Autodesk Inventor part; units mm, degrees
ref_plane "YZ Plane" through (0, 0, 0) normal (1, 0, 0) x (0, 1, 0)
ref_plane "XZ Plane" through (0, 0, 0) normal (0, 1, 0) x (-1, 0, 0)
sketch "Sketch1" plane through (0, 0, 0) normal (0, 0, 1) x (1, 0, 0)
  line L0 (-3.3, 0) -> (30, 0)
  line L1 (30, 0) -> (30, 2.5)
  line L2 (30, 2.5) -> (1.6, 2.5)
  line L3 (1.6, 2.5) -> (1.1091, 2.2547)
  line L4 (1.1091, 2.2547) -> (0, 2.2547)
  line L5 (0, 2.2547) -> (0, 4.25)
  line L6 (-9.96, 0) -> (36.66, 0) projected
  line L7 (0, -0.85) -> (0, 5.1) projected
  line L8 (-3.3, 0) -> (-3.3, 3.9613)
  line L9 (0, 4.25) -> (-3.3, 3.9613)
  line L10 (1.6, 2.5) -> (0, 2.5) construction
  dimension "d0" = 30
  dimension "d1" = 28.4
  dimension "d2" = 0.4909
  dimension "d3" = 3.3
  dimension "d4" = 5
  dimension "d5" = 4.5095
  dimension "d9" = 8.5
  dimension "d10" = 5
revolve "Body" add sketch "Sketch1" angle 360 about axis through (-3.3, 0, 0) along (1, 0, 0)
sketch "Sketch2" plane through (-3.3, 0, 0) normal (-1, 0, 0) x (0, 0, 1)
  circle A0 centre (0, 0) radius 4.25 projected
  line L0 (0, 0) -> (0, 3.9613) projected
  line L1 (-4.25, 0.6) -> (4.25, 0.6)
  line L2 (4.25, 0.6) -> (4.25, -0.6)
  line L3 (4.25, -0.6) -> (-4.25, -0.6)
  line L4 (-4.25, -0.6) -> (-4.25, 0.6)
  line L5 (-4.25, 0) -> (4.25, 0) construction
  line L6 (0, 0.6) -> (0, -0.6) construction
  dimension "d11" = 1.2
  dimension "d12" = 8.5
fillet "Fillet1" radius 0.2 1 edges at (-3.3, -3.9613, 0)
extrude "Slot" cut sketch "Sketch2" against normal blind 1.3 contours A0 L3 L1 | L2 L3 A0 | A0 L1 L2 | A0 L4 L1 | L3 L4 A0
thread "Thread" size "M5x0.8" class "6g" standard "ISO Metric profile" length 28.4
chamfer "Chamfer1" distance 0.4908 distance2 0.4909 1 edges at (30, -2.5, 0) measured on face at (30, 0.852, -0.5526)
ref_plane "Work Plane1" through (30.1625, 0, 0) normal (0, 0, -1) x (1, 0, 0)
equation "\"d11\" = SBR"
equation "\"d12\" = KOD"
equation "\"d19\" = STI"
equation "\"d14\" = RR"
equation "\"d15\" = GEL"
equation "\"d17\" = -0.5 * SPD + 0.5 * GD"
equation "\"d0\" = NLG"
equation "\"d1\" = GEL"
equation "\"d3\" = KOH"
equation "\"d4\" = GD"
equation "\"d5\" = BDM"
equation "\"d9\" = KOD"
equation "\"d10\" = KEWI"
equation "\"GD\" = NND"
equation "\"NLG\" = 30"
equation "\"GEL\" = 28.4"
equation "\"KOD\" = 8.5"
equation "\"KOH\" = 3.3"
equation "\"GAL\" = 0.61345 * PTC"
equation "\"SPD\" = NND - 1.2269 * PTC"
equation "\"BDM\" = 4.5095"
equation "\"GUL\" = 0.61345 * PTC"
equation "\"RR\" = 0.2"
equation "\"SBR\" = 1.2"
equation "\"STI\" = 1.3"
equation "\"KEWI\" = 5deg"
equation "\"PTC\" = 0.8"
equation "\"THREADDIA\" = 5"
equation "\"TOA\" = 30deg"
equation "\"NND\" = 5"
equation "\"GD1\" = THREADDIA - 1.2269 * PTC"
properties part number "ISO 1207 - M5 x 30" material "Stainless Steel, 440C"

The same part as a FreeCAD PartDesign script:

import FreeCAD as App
import Part
import Sketcher
Q = App.Units.Quantity


def edges_at(feature, points):
    """Names of the edges that pass closest to the given points."""
    edges = feature.Shape.Edges
    near = lambda p: min(range(len(edges)), key=lambda i: edges[i].distToShape(Part.Vertex(*p))[0])
    return sorted({f"Edge{near(p) + 1}" for p in points})

doc = App.newDocument("Part")
body = doc.addObject("PartDesign::Body", "Body")

# Sketch on XY plane
sketch1 = doc.addObject("Sketcher::SketchObject", "Sketch")
body.addObject(sketch1)
sketch1.AttachmentSupport = (doc.XY_Plane, [""])
sketch1.MapMode = "FlatFace"
sketch1.addGeometry([
    Part.LineSegment(App.Vector(-3.3, 4, 0), App.Vector(-3.3, 0, 0)),  # 0
    Part.LineSegment(App.Vector(-3.3, 0, 0), App.Vector(30, 0, 0)),  # 1
    Part.LineSegment(App.Vector(30, 0, 0), App.Vector(30, 2.5, 0)),  # 2
    Part.LineSegment(App.Vector(30, 2.5, 0), App.Vector(1.6, 2.5, 0)),  # 3
    Part.LineSegment(App.Vector(1.6, 2.5, 0), App.Vector(1.1, 2.3, 0)),  # 4
    Part.LineSegment(App.Vector(1.1, 2.3, 0), App.Vector(0, 2.3, 0)),  # 5
    Part.LineSegment(App.Vector(0, 2.3, 0), App.Vector(0, 4.2, 0)),  # 6
    Part.LineSegment(App.Vector(0, 4.2, 0), App.Vector(-3.3, 4, 0)),  # 7
], False)
sketch1.addConstraint([
    Sketcher.Constraint("Coincident", 0, 2, 1, 1),
    Sketcher.Constraint("Coincident", 1, 2, 2, 1),
    Sketcher.Constraint("Coincident", 2, 2, 3, 1),
    Sketcher.Constraint("Coincident", 3, 2, 4, 1),
    Sketcher.Constraint("Coincident", 4, 2, 5, 1),
    Sketcher.Constraint("Coincident", 5, 2, 6, 1),
    Sketcher.Constraint("Coincident", 6, 2, 7, 1),
    Sketcher.Constraint("Coincident", 7, 2, 0, 1),
    Sketcher.Constraint("Vertical", 0),
    Sketcher.Constraint("Horizontal", 1),
    Sketcher.Constraint("Vertical", 2),
    Sketcher.Constraint("Horizontal", 3),
    Sketcher.Constraint("Horizontal", 5),
    Sketcher.Constraint("Vertical", 6),
    Sketcher.Constraint("PointOnObject", 0, 2, -1),
    Sketcher.Constraint("PointOnObject", 5, 2, -2),
    Sketcher.Constraint("DistanceX", 3, 2, 3, 1, 28.4),
    Sketcher.Constraint("DistanceX", -1, 1, 1, 2, 30.0),
    Sketcher.Constraint("DistanceX", 0, 2, -1, 1, 3.3),
    Sketcher.Constraint("Angle", 7, Q("-175.0002 deg")),
    Sketcher.Constraint("DistanceY", 2, 1, 2, 2, 2.5),
    Sketcher.Constraint("DistanceX", 4, 2, 3, 2, 0.491),
    Sketcher.Constraint("Angle", 4, Q("-153.449 deg")),
    Sketcher.Constraint("DistanceY", -1, 1, 6, 2, 4.25),
])
revolution = doc.addObject("PartDesign::Revolution", "Revolution")
body.addObject(revolution)
revolution.Profile = sketch1
revolution.ReferenceAxis = (sketch1, ["H_Axis"])
revolution.Angle = 360
doc.recompute()

fillet = doc.addObject("PartDesign::Fillet", "Fillet")
body.addObject(fillet)
fillet.Base = (revolution, edges_at(revolution, [(-3.3, -3.961, 0)]))
fillet.Radius = 0.2

# Sketch on YZ plane
sketch2 = doc.addObject("Sketcher::SketchObject", "Sketch001")
body.addObject(sketch2)
sketch2.AttachmentSupport = (doc.YZ_Plane, [""])
sketch2.MapMode = "FlatFace"
sketch2.AttachmentOffset = App.Placement(App.Vector(0, 0, -3.3), App.Rotation())
sketch2.addGeometry([
    Part.LineSegment(App.Vector(-0.6, 4.2, 0), App.Vector(0.6, 4.2, 0)),
    Part.LineSegment(App.Vector(0.6, 4.2, 0), App.Vector(0.6, -4.2, 0)),
    Part.LineSegment(App.Vector(0.6, -4.2, 0), App.Vector(-0.6, -4.2, 0)),
    Part.LineSegment(App.Vector(-0.6, -4.2, 0), App.Vector(-0.6, 4.2, 0)),
], False)
sketch2.addConstraint([
    Sketcher.Constraint("Coincident", 0, 2, 1, 1),
    Sketcher.Constraint("Coincident", 1, 2, 2, 1),
    Sketcher.Constraint("Coincident", 2, 2, 3, 1),
    Sketcher.Constraint("Coincident", 3, 2, 0, 1),
    Sketcher.Constraint("Horizontal", 0),
    Sketcher.Constraint("Vertical", 1),
    Sketcher.Constraint("Horizontal", 2),
    Sketcher.Constraint("Vertical", 3),
    Sketcher.Constraint("Symmetric", 0, 2, 2, 2, -1, 1),
    Sketcher.Constraint("DistanceX", 0, 1, 0, 2, 1.2),
    Sketcher.Constraint("DistanceY", 1, 2, 1, 1, 8.5),
])
pocket1 = doc.addObject("PartDesign::Pocket", "Pocket")
body.addObject(pocket1)
pocket1.Profile = sketch2
pocket1.Length = 1.3
pocket1.Reversed = True
doc.recompute()

chamfer = doc.addObject("PartDesign::Chamfer", "Chamfer")
body.addObject(chamfer)
chamfer.Base = (pocket1, edges_at(pocket1, [(30, -2.5, 0)]))
chamfer.ChamferType = "Two distances"
chamfer.Size = 0.4908
chamfer.Size2 = 0.4909

doc.recompute()
